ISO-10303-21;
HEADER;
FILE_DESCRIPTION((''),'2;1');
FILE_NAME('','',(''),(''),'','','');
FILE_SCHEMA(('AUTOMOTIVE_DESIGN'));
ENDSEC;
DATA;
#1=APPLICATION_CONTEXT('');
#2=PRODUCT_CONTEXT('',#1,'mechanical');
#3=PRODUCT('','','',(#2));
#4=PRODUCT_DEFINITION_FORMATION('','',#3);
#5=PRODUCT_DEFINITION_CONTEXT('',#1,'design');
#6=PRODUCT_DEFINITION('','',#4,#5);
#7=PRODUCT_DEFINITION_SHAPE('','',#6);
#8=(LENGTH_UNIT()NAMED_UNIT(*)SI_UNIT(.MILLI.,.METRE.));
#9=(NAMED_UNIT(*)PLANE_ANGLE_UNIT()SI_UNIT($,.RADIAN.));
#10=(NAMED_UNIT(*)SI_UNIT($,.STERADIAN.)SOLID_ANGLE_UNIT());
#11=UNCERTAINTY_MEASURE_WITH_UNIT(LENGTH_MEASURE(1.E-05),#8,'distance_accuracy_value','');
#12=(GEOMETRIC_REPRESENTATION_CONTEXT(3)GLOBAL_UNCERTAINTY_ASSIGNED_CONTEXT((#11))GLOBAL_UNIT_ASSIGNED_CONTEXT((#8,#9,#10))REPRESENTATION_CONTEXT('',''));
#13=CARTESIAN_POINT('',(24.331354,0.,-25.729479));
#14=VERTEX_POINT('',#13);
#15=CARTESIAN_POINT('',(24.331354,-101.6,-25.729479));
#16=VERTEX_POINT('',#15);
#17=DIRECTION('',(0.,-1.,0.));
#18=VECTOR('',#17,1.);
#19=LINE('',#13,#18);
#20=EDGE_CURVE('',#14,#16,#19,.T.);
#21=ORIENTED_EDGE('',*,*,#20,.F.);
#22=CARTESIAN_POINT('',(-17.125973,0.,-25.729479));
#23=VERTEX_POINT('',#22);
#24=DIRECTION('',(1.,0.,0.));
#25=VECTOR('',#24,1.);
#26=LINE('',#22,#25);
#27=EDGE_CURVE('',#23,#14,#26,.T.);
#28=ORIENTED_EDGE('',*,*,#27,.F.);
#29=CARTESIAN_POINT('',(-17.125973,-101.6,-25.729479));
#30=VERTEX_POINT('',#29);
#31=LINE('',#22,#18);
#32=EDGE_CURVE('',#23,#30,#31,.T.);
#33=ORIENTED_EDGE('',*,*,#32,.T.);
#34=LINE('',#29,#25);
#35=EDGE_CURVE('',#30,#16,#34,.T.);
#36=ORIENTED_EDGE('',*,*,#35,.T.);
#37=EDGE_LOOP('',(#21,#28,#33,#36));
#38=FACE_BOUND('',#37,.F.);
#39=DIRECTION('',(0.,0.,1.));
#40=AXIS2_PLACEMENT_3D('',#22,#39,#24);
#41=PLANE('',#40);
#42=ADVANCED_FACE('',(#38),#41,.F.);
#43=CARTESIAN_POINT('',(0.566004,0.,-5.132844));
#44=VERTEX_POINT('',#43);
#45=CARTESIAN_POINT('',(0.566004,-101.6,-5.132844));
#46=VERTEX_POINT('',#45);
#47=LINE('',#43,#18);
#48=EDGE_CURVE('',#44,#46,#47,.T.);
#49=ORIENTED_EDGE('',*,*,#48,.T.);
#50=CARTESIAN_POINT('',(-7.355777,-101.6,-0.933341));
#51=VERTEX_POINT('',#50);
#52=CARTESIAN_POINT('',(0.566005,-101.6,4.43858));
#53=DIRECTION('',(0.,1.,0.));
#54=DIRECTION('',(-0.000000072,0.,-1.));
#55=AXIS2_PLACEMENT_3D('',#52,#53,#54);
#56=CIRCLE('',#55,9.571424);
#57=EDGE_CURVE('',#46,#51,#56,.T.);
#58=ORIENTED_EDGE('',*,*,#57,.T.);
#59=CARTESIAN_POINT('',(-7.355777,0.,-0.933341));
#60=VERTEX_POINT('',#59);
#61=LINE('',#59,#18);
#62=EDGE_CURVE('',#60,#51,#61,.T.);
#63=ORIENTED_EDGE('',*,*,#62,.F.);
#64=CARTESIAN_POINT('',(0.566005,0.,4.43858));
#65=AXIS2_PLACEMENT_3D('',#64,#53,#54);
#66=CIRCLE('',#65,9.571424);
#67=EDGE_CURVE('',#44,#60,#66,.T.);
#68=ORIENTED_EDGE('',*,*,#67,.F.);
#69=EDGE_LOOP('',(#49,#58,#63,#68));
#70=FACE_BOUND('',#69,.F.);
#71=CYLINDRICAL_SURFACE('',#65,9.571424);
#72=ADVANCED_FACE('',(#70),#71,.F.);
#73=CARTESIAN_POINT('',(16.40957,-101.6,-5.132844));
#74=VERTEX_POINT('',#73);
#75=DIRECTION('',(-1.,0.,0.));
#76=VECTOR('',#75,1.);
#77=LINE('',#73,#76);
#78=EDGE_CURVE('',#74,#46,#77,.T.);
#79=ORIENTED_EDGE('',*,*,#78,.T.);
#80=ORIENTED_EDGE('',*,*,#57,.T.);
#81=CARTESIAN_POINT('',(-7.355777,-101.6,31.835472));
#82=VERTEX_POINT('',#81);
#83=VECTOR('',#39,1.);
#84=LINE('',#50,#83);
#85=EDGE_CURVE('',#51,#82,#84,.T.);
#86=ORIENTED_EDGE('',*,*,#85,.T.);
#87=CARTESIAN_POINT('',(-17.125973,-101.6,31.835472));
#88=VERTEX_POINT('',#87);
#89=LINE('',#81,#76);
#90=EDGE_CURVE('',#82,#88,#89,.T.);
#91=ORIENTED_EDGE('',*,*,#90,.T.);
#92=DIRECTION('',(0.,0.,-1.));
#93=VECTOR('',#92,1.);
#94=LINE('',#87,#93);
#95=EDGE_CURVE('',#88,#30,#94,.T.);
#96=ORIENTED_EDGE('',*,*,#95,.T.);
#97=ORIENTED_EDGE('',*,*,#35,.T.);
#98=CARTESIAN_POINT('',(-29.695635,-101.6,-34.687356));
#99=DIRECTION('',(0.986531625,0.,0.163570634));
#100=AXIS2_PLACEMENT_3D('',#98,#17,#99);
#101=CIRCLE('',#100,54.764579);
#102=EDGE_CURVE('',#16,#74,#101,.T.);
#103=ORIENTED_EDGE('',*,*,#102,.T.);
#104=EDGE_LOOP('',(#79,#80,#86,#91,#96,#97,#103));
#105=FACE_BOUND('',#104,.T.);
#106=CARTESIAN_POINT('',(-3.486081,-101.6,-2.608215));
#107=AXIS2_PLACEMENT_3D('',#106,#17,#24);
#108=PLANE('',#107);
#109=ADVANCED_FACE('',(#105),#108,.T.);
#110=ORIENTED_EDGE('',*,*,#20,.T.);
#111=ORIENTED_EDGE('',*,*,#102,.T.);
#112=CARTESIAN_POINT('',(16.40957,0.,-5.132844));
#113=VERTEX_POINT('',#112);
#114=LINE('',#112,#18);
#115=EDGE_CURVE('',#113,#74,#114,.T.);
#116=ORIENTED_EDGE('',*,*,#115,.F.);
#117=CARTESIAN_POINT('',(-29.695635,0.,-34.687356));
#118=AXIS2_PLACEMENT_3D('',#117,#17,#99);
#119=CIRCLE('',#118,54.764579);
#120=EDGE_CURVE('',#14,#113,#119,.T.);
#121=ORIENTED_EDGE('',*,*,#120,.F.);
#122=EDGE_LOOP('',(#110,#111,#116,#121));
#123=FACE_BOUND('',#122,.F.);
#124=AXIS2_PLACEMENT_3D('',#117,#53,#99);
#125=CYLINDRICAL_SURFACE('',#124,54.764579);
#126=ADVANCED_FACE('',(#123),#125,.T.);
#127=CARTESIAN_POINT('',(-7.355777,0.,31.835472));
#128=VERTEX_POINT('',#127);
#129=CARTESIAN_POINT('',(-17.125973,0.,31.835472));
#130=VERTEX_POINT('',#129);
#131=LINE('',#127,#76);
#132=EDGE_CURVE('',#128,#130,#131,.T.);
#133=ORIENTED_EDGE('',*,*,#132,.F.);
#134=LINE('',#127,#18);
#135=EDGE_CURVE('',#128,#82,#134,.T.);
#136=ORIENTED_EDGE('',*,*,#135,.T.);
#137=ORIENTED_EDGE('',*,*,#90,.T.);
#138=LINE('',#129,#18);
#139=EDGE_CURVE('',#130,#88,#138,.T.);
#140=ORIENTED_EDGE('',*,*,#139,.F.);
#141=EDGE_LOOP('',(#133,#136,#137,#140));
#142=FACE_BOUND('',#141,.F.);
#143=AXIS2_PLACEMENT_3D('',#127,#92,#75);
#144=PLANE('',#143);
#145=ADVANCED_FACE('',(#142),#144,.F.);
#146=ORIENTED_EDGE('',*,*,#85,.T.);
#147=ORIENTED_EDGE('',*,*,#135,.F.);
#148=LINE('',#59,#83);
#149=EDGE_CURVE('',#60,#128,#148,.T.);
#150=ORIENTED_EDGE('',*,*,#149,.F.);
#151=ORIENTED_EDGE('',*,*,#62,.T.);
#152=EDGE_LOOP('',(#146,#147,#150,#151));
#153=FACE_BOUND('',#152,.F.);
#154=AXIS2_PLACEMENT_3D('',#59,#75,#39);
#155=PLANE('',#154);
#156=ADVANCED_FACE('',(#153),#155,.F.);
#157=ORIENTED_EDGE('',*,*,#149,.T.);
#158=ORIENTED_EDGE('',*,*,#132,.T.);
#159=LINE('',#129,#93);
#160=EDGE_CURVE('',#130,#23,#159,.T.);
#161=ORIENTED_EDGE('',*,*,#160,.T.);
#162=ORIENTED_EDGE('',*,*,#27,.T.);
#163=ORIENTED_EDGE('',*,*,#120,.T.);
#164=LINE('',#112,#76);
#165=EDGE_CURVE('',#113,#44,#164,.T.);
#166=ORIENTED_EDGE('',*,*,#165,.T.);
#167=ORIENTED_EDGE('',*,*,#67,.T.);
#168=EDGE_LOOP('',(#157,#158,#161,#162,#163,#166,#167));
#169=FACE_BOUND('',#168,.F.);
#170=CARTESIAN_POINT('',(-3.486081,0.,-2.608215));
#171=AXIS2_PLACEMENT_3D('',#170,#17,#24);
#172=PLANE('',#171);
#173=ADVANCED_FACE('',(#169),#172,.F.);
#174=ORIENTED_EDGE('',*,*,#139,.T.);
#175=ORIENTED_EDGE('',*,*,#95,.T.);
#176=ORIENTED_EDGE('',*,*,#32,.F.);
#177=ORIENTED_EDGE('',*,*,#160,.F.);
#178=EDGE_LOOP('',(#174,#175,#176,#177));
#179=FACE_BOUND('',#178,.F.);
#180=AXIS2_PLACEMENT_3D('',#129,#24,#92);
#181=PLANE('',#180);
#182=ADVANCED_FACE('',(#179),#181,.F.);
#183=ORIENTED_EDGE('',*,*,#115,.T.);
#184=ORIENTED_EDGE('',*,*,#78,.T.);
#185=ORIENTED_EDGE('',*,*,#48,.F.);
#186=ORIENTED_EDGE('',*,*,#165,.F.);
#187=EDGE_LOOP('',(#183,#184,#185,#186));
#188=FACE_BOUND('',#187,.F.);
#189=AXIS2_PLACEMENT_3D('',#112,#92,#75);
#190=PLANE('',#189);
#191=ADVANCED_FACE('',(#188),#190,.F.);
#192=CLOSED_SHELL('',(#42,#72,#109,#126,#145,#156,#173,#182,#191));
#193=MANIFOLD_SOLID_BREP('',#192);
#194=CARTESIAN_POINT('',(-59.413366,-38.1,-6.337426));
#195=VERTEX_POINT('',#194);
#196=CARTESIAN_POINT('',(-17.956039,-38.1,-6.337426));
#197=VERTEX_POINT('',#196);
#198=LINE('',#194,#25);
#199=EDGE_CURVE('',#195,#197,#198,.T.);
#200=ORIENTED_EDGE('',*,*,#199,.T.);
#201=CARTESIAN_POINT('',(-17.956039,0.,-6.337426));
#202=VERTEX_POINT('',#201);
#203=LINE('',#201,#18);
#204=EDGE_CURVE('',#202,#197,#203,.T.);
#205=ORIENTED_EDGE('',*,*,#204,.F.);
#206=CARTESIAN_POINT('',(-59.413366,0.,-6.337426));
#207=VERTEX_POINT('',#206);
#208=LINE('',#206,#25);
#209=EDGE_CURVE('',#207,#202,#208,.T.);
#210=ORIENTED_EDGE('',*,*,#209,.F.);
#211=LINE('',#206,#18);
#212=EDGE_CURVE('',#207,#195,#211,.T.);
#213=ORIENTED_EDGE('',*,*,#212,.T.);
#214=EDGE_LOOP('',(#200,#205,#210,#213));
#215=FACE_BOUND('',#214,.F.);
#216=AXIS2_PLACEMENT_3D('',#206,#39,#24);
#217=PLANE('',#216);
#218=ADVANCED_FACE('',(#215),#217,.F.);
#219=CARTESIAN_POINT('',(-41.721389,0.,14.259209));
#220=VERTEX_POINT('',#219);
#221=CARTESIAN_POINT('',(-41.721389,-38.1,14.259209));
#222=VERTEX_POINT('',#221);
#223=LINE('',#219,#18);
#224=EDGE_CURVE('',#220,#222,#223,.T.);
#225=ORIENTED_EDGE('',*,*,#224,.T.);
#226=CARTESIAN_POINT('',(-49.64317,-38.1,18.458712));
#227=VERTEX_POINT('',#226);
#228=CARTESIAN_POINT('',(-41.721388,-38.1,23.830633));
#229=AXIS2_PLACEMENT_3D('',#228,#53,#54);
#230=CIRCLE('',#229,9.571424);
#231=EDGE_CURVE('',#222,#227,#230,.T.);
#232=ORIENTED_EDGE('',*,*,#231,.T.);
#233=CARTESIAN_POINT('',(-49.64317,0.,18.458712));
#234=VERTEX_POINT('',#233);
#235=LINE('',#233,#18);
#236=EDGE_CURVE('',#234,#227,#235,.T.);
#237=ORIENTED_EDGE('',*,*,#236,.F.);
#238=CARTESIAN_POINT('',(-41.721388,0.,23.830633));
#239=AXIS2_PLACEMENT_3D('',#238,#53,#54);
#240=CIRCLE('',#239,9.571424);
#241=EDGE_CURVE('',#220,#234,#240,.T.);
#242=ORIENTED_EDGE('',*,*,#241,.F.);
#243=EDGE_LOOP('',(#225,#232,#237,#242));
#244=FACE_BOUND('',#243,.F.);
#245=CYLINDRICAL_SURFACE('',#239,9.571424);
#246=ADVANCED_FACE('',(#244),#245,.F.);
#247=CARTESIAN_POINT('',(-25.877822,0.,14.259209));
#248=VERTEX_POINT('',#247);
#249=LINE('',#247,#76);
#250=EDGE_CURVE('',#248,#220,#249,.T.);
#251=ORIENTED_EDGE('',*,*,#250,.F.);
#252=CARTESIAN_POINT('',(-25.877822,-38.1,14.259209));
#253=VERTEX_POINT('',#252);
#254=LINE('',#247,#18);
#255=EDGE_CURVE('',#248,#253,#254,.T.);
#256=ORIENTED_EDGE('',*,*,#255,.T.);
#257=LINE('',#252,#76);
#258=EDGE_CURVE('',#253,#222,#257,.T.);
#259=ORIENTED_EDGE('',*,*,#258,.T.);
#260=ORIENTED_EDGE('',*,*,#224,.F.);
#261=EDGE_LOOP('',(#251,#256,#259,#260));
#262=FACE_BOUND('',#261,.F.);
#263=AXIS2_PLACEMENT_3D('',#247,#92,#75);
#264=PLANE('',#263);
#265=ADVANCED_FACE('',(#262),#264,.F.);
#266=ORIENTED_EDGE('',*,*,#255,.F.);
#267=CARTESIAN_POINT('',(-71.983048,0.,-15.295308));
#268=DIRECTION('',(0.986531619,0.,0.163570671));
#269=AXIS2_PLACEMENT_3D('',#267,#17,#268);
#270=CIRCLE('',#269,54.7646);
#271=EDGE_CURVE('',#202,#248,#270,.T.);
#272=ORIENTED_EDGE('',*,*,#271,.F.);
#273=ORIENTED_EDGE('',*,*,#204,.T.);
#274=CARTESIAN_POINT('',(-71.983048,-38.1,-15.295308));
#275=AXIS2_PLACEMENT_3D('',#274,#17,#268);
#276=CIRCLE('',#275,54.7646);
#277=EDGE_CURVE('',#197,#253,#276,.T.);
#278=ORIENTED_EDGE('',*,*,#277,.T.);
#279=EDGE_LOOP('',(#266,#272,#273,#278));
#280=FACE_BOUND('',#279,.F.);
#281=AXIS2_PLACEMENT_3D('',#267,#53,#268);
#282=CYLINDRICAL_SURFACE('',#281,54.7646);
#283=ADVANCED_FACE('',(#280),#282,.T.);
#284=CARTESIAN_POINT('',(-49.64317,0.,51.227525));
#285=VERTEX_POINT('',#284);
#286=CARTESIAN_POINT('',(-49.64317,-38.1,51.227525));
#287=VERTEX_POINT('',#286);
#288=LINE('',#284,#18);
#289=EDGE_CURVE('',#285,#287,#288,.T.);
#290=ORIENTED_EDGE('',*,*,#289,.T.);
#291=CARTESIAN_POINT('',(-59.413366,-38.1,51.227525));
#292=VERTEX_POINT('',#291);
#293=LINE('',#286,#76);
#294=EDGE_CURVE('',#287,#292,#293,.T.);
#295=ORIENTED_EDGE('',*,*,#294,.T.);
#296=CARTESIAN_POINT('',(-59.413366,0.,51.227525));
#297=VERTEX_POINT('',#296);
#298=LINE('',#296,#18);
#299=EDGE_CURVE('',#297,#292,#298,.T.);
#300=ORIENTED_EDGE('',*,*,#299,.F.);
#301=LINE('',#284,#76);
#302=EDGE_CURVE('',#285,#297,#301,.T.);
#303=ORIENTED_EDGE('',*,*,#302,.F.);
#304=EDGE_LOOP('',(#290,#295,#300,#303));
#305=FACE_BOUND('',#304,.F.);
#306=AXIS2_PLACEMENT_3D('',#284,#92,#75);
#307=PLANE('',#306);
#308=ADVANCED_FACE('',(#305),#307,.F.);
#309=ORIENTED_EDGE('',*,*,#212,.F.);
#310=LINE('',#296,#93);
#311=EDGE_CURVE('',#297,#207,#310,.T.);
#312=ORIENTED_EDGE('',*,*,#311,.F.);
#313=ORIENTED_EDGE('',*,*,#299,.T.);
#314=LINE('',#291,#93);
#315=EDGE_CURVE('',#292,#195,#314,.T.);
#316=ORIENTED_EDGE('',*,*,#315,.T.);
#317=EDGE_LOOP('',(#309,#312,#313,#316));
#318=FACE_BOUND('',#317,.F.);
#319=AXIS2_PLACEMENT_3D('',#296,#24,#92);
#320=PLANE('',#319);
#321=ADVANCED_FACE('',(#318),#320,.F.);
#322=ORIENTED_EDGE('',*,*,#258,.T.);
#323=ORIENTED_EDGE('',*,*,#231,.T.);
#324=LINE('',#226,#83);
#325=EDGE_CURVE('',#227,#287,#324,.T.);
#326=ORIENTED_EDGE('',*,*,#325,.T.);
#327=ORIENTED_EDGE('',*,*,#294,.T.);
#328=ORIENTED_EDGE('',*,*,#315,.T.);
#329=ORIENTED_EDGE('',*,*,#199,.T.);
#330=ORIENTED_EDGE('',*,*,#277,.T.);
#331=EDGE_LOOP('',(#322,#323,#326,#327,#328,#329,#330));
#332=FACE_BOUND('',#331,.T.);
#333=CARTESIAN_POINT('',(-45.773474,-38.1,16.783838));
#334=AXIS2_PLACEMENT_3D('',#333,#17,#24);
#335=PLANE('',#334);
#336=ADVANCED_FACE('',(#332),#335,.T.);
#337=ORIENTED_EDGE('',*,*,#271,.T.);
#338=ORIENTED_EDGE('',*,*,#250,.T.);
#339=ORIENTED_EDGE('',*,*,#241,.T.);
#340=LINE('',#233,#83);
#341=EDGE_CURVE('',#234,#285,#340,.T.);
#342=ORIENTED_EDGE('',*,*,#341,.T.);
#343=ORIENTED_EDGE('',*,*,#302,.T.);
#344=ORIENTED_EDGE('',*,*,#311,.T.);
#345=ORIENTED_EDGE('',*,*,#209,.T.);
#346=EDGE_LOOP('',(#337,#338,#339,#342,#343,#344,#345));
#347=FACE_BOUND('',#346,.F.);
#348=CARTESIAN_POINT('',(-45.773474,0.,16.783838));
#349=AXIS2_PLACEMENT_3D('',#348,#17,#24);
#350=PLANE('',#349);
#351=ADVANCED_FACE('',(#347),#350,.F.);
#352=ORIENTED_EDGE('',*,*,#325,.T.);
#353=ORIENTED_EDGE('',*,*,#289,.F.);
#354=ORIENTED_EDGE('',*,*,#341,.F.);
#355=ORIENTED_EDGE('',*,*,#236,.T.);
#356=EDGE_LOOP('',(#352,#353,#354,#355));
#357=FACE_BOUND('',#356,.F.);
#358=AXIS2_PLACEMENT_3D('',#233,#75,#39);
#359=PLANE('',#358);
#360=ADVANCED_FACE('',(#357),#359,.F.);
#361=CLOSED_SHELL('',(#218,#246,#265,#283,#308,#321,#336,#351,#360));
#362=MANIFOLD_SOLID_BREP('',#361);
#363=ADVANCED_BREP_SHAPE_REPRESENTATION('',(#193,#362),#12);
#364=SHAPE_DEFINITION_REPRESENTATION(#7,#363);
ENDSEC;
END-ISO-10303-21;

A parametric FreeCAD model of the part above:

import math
import FreeCAD as App
import Part
import Sketcher
from FreeCAD import Vector
Q = App.Units.Quantity

doc = App.newDocument("Part")
body = doc.addObject("PartDesign::Body", "Body")

# Sketch on XZ plane
sketch1 = body.newObject("Sketcher::SketchObject", "Sketch")
sketch1.AttachmentSupport = (doc.getObject("XZ_Plane"), [""])
sketch1.MapMode = "FlatFace"
sketch1.addGeometry([
    Part.LineSegment(Vector(-50, 51, 0), Vector(-59, 51, 0)),  # 0
    Part.LineSegment(Vector(-59, 51, 0), Vector(-59, -6, 0)),  # 1
    Part.LineSegment(Vector(-59, -6, 0), Vector(-18, -6, 0)),  # 2
    Part.ArcOfCircle(Part.Circle(Vector(-72, -15, 0), Vector(0, 0, 1), 55), math.radians(9), math.radians(33)),  # 3
    Part.LineSegment(Vector(-26, 14, 0), Vector(-42, 14, 0)),  # 4
    Part.ArcOfCircle(Part.Circle(Vector(-42, 24, 0), Vector(0, 0, 1), 10), math.radians(-146), math.radians(-90)),  # 5
    Part.LineSegment(Vector(-50, 18, 0), Vector(-50, 51, 0)),  # 6
], False)
sketch1.addConstraint([
    Sketcher.Constraint("Coincident", 0, 2, 1, 1),
    Sketcher.Constraint("Coincident", 1, 2, 2, 1),
    Sketcher.Constraint("Coincident", 2, 2, 3, 1),
    Sketcher.Constraint("Coincident", 3, 2, 4, 1),
    Sketcher.Constraint("Tangent", 4, 2, 5, 2),
    Sketcher.Constraint("Coincident", 5, 1, 6, 1),
    Sketcher.Constraint("Coincident", 6, 2, 0, 1),
    Sketcher.Constraint("Horizontal", 0),
    Sketcher.Constraint("Vertical", 1),
    Sketcher.Constraint("Horizontal", 2),
    Sketcher.Constraint("Horizontal", 4),
    Sketcher.Constraint("Vertical", 6),
    Sketcher.Constraint("Radius", 3, 54.7646),
    Sketcher.Constraint("Radius", 5, 9.571424),
    Sketcher.Constraint("DistanceY", 1, 2, 1, 1, 57.564951),
    Sketcher.Constraint("DistanceX", 0, 2, 0, 1, 9.770196),
    Sketcher.Constraint("DistanceX", 2, 1, 2, 2, 41.457327),
    Sketcher.Constraint("DistanceX", 4, 2, 4, 1, 15.843567),
    Sketcher.Constraint("DistanceY", 6, 1, 6, 2, 32.768813),
    Sketcher.Constraint("DistanceX", 3, 3, -1, 1, 71.983048),
    Sketcher.Constraint("DistanceY", 3, 3, -1, 1, 15.295308),
    Sketcher.Constraint("DistanceX", 5, 3, -1, 1, 41.721388),
])
pad1 = body.newObject("PartDesign::Pad", "Pad")
pad1.Profile = sketch1
pad1.Length = Q("1.5 in")
body2 = doc.addObject("PartDesign::Body", "Body001")

# Sketch on XZ plane
sketch2 = body2.newObject("Sketcher::SketchObject", "Sketch001")
sketch2.AttachmentSupport = (doc.getObject("XZ_Plane001"), [""])
sketch2.MapMode = "FlatFace"
sketch2.addGeometry([
    Part.LineSegment(Vector(-7, 32, 0), Vector(-17, 32, 0)),  # 0
    Part.LineSegment(Vector(-17, 32, 0), Vector(-17, -26, 0)),  # 1
    Part.LineSegment(Vector(-17, -26, 0), Vector(24, -26, 0)),  # 2
    Part.ArcOfCircle(Part.Circle(Vector(-30, -35, 0), Vector(0, 0, 1), 55), math.radians(9), math.radians(33)),  # 3
    Part.LineSegment(Vector(16, -5, 0), Vector(1, -5, 0)),  # 4
    Part.ArcOfCircle(Part.Circle(Vector(1, 4, 0), Vector(0, 0, 1), 10), math.radians(-146), math.radians(-90)),  # 5
    Part.LineSegment(Vector(-7, -1, 0), Vector(-7, 32, 0)),  # 6
], False)
sketch2.addConstraint([
    Sketcher.Constraint("Coincident", 0, 2, 1, 1),
    Sketcher.Constraint("Coincident", 1, 2, 2, 1),
    Sketcher.Constraint("Coincident", 2, 2, 3, 1),
    Sketcher.Constraint("Coincident", 3, 2, 4, 1),
    Sketcher.Constraint("Tangent", 4, 2, 5, 2),
    Sketcher.Constraint("Coincident", 5, 1, 6, 1),
    Sketcher.Constraint("Coincident", 6, 2, 0, 1),
    Sketcher.Constraint("Horizontal", 0),
    Sketcher.Constraint("Vertical", 1),
    Sketcher.Constraint("Horizontal", 2),
    Sketcher.Constraint("Horizontal", 4),
    Sketcher.Constraint("Vertical", 6),
    Sketcher.Constraint("Radius", 3, 54.764579),
    Sketcher.Constraint("Radius", 5, 9.571424),
    Sketcher.Constraint("DistanceY", 1, 2, 1, 1, 57.564951),
    Sketcher.Constraint("DistanceX", 0, 2, 0, 1, 9.770196),
    Sketcher.Constraint("DistanceX", 2, 1, 2, 2, 41.457327),
    Sketcher.Constraint("DistanceX", 4, 2, 4, 1, 15.843566),
    Sketcher.Constraint("DistanceY", 6, 1, 6, 2, 32.768813),
    Sketcher.Constraint("DistanceY", -1, 1, 5, 3, 4.43858),
    Sketcher.Constraint("DistanceY", -1, 1, 0, 2, 31.835472),
    Sketcher.Constraint("DistanceX", -1, 1, 3, 2, 16.40957),
])
pad2 = body2.newObject("PartDesign::Pad", "Pad001")
pad2.Profile = sketch2
pad2.Length = Q("4 in")

doc.recompute()
